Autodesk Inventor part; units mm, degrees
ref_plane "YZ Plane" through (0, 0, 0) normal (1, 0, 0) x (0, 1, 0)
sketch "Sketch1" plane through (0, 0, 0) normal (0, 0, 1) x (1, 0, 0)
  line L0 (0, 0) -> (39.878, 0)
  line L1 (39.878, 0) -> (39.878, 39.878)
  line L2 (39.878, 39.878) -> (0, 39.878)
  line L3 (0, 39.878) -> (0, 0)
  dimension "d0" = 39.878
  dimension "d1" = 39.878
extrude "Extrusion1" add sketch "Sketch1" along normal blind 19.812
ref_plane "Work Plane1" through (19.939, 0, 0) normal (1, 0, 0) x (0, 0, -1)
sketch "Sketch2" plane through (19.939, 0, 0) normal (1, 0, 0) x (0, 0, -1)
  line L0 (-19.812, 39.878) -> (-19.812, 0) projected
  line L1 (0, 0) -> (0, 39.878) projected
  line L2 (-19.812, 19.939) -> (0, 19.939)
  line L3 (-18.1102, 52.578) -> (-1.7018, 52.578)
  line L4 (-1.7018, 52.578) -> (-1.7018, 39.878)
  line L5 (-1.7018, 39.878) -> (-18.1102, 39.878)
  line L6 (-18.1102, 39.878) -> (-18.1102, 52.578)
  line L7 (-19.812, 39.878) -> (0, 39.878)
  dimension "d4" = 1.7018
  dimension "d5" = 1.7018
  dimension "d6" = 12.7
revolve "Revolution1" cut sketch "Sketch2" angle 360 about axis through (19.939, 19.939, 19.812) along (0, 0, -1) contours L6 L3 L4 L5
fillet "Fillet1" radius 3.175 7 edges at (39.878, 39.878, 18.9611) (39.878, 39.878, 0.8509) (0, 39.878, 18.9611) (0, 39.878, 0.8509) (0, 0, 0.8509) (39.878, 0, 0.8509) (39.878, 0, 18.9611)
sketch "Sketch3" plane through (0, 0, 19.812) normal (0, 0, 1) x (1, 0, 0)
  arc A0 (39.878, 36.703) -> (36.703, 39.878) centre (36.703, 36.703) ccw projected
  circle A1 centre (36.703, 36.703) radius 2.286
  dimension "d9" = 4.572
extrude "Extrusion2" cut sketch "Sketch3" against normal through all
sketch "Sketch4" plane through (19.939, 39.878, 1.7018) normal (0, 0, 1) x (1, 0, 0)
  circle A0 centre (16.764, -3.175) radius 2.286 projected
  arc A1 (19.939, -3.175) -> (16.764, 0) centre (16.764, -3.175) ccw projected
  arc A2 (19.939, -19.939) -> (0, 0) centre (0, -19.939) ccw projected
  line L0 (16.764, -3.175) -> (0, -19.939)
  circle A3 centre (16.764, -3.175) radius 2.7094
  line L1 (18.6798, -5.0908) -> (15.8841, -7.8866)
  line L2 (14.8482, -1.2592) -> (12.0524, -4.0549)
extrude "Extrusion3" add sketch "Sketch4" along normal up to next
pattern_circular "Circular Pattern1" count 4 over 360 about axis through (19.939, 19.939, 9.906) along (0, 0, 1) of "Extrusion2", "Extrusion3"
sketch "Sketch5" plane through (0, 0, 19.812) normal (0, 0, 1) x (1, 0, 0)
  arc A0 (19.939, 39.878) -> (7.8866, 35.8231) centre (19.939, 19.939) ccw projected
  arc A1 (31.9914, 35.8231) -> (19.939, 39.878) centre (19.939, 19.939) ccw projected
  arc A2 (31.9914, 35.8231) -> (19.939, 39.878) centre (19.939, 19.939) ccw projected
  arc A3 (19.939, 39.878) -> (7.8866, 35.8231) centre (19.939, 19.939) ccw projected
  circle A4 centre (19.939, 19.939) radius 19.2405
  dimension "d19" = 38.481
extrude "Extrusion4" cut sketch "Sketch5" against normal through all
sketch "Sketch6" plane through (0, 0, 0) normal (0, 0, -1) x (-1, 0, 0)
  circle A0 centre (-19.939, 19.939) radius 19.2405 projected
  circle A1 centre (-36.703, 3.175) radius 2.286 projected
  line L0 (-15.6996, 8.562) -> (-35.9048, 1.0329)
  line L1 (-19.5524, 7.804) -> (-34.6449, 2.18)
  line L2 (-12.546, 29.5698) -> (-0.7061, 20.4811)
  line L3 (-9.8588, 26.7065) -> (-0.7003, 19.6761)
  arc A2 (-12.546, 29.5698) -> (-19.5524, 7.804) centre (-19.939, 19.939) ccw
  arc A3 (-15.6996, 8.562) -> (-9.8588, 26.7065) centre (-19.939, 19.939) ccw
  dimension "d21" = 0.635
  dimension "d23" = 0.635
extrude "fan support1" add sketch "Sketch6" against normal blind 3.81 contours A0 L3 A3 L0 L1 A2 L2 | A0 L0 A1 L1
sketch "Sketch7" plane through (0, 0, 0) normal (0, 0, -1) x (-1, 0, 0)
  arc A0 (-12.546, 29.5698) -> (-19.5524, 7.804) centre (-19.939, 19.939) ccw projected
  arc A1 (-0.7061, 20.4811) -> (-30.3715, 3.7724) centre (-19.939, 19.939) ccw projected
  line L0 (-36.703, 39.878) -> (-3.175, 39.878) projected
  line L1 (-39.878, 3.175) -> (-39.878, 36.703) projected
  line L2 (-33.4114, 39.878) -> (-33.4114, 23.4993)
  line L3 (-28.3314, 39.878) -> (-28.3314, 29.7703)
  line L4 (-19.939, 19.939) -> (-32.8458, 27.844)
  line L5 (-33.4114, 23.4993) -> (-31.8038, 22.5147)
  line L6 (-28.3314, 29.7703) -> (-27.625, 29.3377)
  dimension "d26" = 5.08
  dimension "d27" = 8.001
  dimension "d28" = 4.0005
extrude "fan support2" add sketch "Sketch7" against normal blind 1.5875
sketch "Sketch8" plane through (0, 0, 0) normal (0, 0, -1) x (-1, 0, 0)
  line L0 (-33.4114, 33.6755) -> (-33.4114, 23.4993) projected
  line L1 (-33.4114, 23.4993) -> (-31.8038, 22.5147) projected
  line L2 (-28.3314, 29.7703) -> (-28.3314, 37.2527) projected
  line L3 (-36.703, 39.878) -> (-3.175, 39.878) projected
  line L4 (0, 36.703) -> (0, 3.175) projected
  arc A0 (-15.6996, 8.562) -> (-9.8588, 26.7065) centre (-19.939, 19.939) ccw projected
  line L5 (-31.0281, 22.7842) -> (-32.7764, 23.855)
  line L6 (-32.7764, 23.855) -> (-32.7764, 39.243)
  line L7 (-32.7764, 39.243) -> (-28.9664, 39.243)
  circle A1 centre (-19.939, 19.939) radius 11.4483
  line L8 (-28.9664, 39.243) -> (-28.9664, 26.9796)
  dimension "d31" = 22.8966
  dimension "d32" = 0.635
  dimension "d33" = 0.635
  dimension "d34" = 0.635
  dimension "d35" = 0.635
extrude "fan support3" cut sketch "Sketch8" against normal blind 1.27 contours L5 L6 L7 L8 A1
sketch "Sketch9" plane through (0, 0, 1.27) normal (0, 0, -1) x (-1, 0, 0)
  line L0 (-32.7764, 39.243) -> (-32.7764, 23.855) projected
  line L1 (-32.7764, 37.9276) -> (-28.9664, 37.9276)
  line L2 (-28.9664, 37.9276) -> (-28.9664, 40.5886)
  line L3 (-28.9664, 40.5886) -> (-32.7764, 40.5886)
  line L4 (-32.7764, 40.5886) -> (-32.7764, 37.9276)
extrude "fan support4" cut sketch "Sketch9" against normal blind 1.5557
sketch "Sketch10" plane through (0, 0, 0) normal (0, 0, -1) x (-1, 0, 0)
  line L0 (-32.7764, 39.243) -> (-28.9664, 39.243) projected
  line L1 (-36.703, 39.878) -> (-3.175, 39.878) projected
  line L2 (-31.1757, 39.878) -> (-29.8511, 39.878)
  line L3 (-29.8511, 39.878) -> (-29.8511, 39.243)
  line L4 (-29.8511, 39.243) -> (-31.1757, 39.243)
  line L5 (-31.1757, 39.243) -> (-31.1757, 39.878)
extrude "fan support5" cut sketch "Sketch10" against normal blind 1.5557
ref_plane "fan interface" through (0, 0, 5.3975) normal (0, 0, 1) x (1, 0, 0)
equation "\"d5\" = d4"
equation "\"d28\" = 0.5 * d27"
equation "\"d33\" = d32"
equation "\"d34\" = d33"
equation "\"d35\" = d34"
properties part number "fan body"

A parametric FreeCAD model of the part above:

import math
import FreeCAD as App
import Part
import Sketcher
from FreeCAD import Vector
Q = App.Units.Quantity


def edges_at(feature, points):
    """Names of the edges that pass closest to the given points."""
    edges = feature.Shape.Edges
    near = lambda p: min(range(len(edges)), key=lambda i: edges[i].distToShape(Part.Vertex(*p))[0])
    return sorted({f"Edge{near(p) + 1}" for p in points})

doc = App.newDocument("Part")
body = doc.addObject("PartDesign::Body", "Body")

sketch1 = doc.addObject("Sketcher::SketchObject", "Sketch")
body.addObject(sketch1)
sketch1.AttachmentSupport = (doc.XY_Plane, [""])
sketch1.MapMode = "FlatFace"
sketch1.addGeometry([
    Part.LineSegment(Vector(0, 39.878, 0), Vector(0, 0, 0)),
    Part.LineSegment(Vector(0, 0, 0), Vector(39.878, 0, 0)),
    Part.LineSegment(Vector(39.878, 0, 0), Vector(39.878, 39.878, 0)),
    Part.LineSegment(Vector(39.878, 39.878, 0), Vector(0, 39.878, 0)),
], False)
sketch1.addConstraint([
    Sketcher.Constraint("Coincident", 0, 2, 1, 1),
    Sketcher.Constraint("Coincident", 1, 2, 2, 1),
    Sketcher.Constraint("Coincident", 2, 2, 3, 1),
    Sketcher.Constraint("Coincident", 3, 2, 0, 1),
    Sketcher.Constraint("Vertical", 0),
    Sketcher.Constraint("Horizontal", 1),
    Sketcher.Constraint("Vertical", 2),
    Sketcher.Constraint("Horizontal", 3),
    Sketcher.Constraint("Coincident", 0, 2, -1, 1),
    Sketcher.Constraint("Equal", 3, 0),
    Sketcher.Constraint("DistanceX", 1, 1, 1, 2, Q("1.57 in")),
])
pad1 = doc.addObject("PartDesign::Pad", "Pad")
body.addObject(pad1)
pad1.Profile = sketch1
pad1.Length = Q("0.78 in")

sketch2 = doc.addObject("Sketcher::SketchObject", "Sketch001")
body.addObject(sketch2)
sketch2.AttachmentSupport = (doc.YZ_Plane, [""])
sketch2.MapMode = "FlatFace"
sketch2.AttachmentOffset = App.Placement(Vector(0, 0, 0.785 * 25.4), App.Rotation())
sketch2.addGeometry([
    Part.LineSegment(Vector(52.578, 18.1102, 0), Vector(39.878, 18.1102, 0)),
    Part.LineSegment(Vector(39.878, 18.1102, 0), Vector(39.878, 1.7018, 0)),
    Part.LineSegment(Vector(39.878, 1.7018, 0), Vector(52.578, 1.7018, 0)),
    Part.LineSegment(Vector(52.578, 1.7018, 0), Vector(52.578, 18.1102, 0)),
], False)
sketch2.addGeometry(Part.LineSegment(Vector(19.939, 18.1102, 0), Vector(19.939, 1.7018, 0)), True)
sketch2.addConstraint([
    Sketcher.Constraint("Coincident", 0, 2, 1, 1),
    Sketcher.Constraint("Coincident", 1, 2, 2, 1),
    Sketcher.Constraint("Coincident", 2, 2, 3, 1),
    Sketcher.Constraint("Coincident", 3, 2, 0, 1),
    Sketcher.Constraint("Horizontal", 0),
    Sketcher.Constraint("Vertical", 1),
    Sketcher.Constraint("Horizontal", 2),
    Sketcher.Constraint("Vertical", 3),
    Sketcher.Constraint("Vertical", 4),
    Sketcher.Constraint("Horizontal", 3, 2, 4, 1),
    Sketcher.Constraint("Horizontal", 2, 2, 4, 2),
    Sketcher.Constraint("DistanceX", 0, 2, 0, 1, Q("0.5 in")),
    Sketcher.Constraint("DistanceY", -1, 1, 1, 2, Q("0.067 in")),
    Sketcher.Constraint("DistanceY", 1, 2, 1, 1, Q("0.646 in")),
    Sketcher.Constraint("DistanceX", -1, 1, 0, 2, Q("1.57 in")),
    Sketcher.Constraint("DistanceX", -1, 1, 4, 1, Q("0.785 in")),
])
groove = doc.addObject("PartDesign::Groove", "Groove")
body.addObject(groove)
groove.Profile = sketch2
groove.ReferenceAxis = (sketch2, ["Axis0"])
groove.Angle = 360
doc.recompute()

fillet = doc.addObject("PartDesign::Fillet", "Fillet")
body.addObject(fillet)
fillet.Base = (groove, edges_at(groove, [
    (39.878, 39.878, 18.961),
    (39.878, 39.878, 0.851),
    (0, 39.878, 18.961),
    (0, 39.878, 0.851),
    (0, 0, 0.851),
    (39.878, 0, 0.851),
    (39.878, 0, 18.961),
]))
fillet.Radius = Q("0.125 in")

sketch3 = doc.addObject("Sketcher::SketchObject", "Sketch002")
body.addObject(sketch3)
sketch3.AttachmentSupport = (doc.XY_Plane, [""])
sketch3.MapMode = "FlatFace"
sketch3.AttachmentOffset = App.Placement(Vector(0, 0, 0.78 * 25.4), App.Rotation())
sketch3.addGeometry(Part.Circle(Vector(36.703, 36.703, 0), Vector(0, 0, 1), 2.286), False)
sketch3.addConstraint([
    Sketcher.Constraint("Diameter", 0, Q("0.18 in")),
    Sketcher.Constraint("DistanceX", -1, 1, 0, 3, Q("1.445 in")),
    Sketcher.Constraint("DistanceY", -1, 1, 0, 3, Q("1.445 in")),
])
pocket1 = doc.addObject("PartDesign::Pocket", "Pocket")
body.addObject(pocket1)
pocket1.Profile = sketch3
pocket1.Type = "ThroughAll"

sketch4 = doc.addObject("Sketcher::SketchObject", "Sketch003")
body.addObject(sketch4)
sketch4.AttachmentSupport = (doc.XY_Plane, [""])
sketch4.MapMode = "FlatFace"
sketch4.AttachmentOffset = App.Placement(Vector(0, 0, 0.067 * 25.4), App.Rotation())
sketch4.addGeometry([
    Part.LineSegment(Vector(34.7872, 38.6188, 0), Vector(31.9914, 35.8231, 0)),
    Part.ArcOfCircle(Part.Circle(Vector(19.939, 19.939, 0), Vector(0, 0, 1), 19.939), math.radians(37.190185), math.radians(52.809815)),
    Part.LineSegment(Vector(35.8231, 31.9914, 0), Vector(38.6188, 34.7872, 0)),
    Part.ArcOfCircle(Part.Circle(Vector(36.703, 36.703, 0), Vector(0, 0, 1), 2.7094), math.radians(-45), math.radians(135)),
    Part.Circle(Vector(36.703, 36.703, 0), Vector(0, 0, 1), 2.286),
], False)
sketch4.addConstraint([
    Sketcher.Constraint("Coincident", 0, 2, 1, 2),
    Sketcher.Constraint("Coincident", 1, 1, 2, 1),
    Sketcher.Constraint("Tangent", 2, 2, 3, 1),
    Sketcher.Constraint("Tangent", 3, 2, 0, 1),
    Sketcher.Constraint("Coincident", 4, 3, 3, 3),
    Sketcher.Constraint("Parallel", 0, 2),
    Sketcher.Constraint("Equal", 0, 2),
    Sketcher.Constraint("Diameter", 4, Q("0.18 in")),
    Sketcher.Constraint("Angle", 0, Q("-135.001 deg")),
    Sketcher.Constraint("Radius", 1, Q("0.785 in")),
    Sketcher.Constraint("Radius", 3, 2.7094),
    Sketcher.Constraint("DistanceX", 1, 3, 3, 3, Q("0.66 in")),
    Sketcher.Constraint("DistanceX", -1, 1, 1, 3, Q("0.785 in")),
    Sketcher.Constraint("DistanceY", -1, 1, 1, 3, Q("0.785 in")),
])
pad2 = doc.addObject("PartDesign::Pad", "Pad001")
body.addObject(pad2)
pad2.Profile = sketch4
pad2.Length = Q("0.646 in")
doc.recompute()

datumline = doc.addObject("PartDesign::Line", "DatumLine")
body.addObject(datumline)
datumline.Placement = App.Placement(Vector(19.939, 19.939, 0), App.Rotation(Vector(0, 0, 1), Vector(0, 0, 1)))
polarpattern = doc.addObject("PartDesign::PolarPattern", "PolarPattern")
body.addObject(polarpattern)
polarpattern.Originals = [pocket1, pad2]
polarpattern.Axis = (datumline, [""])
polarpattern.Angle = 360
polarpattern.Occurrences = 4
body.Tip = polarpattern

sketch5 = doc.addObject("Sketcher::SketchObject", "Sketch004")
body.addObject(sketch5)
sketch5.AttachmentSupport = (doc.XY_Plane, [""])
sketch5.MapMode = "FlatFace"
sketch5.AttachmentOffset = App.Placement(Vector(0, 0, 0.78 * 25.4), App.Rotation())
sketch5.addGeometry(Part.Circle(Vector(19.939, 19.939, 0), Vector(0, 0, 1), 19.2405), False)
sketch5.addConstraint([
    Sketcher.Constraint("Diameter", 0, Q("1.515 in")),
    Sketcher.Constraint("DistanceX", -1, 1, 0, 3, Q("0.785 in")),
    Sketcher.Constraint("DistanceY", -1, 1, 0, 3, Q("0.785 in")),
])
pocket2 = doc.addObject("PartDesign::Pocket", "Pocket001")
body.addObject(pocket2)
pocket2.Profile = sketch5
pocket2.Type = "ThroughAll"

sketch6 = doc.addObject("Sketcher::SketchObject", "Sketch005")
body.addObject(sketch6)
sketch6.AttachmentSupport = (doc.XY_Plane, [""])
sketch6.MapMode = "FlatFace"
sketch6.addGeometry([
    Part.ArcOfCircle(Part.Circle(Vector(19.939, 19.939, 0), Vector(0, 0, 1), 19.2405), math.radians(178.385484), math.radians(180.782908)),
    Part.LineSegment(Vector(0.7061, 20.4811, 0), Vector(12.546, 29.5698, 0)),
    Part.ArcOfCircle(Part.Circle(Vector(19.939, 19.939, 0), Vector(0, 0, 1), 12.141196), math.radians(-91.824727), math.radians(127.511334)),
    Part.LineSegment(Vector(19.5524, 7.804, 0), Vector(34.6449, 2.18, 0)),
    Part.ArcOfCircle(Part.Circle(Vector(36.703, 3.175, 0), Vector(0, 0, 1), 2.286), math.radians(-154.198294), math.radians(-110.436651)),
    Part.LineSegment(Vector(35.9048, 1.0329, 0), Vector(15.6996, 8.562, 0)),
    Part.ArcOfCircle(Part.Circle(Vector(19.939, 19.939, 0), Vector(0, 0, 1), 12.141201), math.radians(146.123945), math.radians(249.563148)),
    Part.LineSegment(Vector(9.8588, 26.7065, 0), Vector(0.7003, 19.6761, 0)),
], False)
sketch6.addConstraint([
    Sketcher.Constraint("Coincident", 0, 1, 1, 1),
    Sketcher.Constraint("Tangent", 1, 2, 2, 2),
    Sketcher.Constraint("Coincident", 2, 1, 3, 1),
    Sketcher.Constraint("Coincident", 3, 2, 4, 1),
    Sketcher.Constraint("Tangent", 4, 2, 5, 1),
    Sketcher.Constraint("Tangent", 5, 2, 6, 2),
    Sketcher.Constraint("Coincident", 6, 1, 7, 1),
    Sketcher.Constraint("Coincident", 7, 2, 0, 2),
    Sketcher.Constraint("Coincident", 2, 3, 0, 3),
    Sketcher.Constraint("Coincident", 6, 3, 0, 3),
    Sketcher.Constraint("Equal", 2, 6),
    Sketcher.Constraint("Parallel", 3, 5),
    Sketcher.Constraint("Parallel", 1, 7),
    Sketcher.Constraint("Radius", 4, Q("0.09 in")),
    Sketcher.Constraint("Radius", 2, Q("0.478 in")),
    Sketcher.Constraint("Radius", 0, Q("0.7575 in")),
    Sketcher.Constraint("Angle", 1, Q("37.511 deg")),
    Sketcher.Constraint("DistanceX", 0, 3, 4, 3, Q("0.66 in")),
    Sketcher.Constraint("DistanceY", 4, 3, 0, 3, Q("0.66 in")),
    Sketcher.Constraint("DistanceX", -1, 1, 0, 3, Q("0.785 in")),
    Sketcher.Constraint("DistanceY", -1, 1, 0, 3, Q("0.785 in")),
    Sketcher.Constraint("Distance", 3, Q("0.6341 in")),
    Sketcher.Constraint("DistanceX", 6, 1, 1, 2, Q("0.1058 in")),
])
pad3 = doc.addObject("PartDesign::Pad", "Pad002")
body.addObject(pad3)
pad3.Profile = sketch6
pad3.Length = Q("0.15 in")

sketch7 = doc.addObject("Sketcher::SketchObject", "Sketch006")
body.addObject(sketch7)
sketch7.AttachmentSupport = (doc.XY_Plane, [""])
sketch7.MapMode = "FlatFace"
sketch7.addGeometry([
    Part.LineSegment(Vector(27.625, 29.3377, 0), Vector(28.3314, 29.7703, 0)),
    Part.LineSegment(Vector(28.3314, 29.7703, 0), Vector(28.3314, 39.878, 0)),
    Part.LineSegment(Vector(28.3314, 39.878, 0), Vector(33.4114, 39.878, 0)),
    Part.LineSegment(Vector(33.4114, 39.878, 0), Vector(33.4114, 23.4993, 0)),
    Part.LineSegment(Vector(33.4114, 23.4993, 0), Vector(31.8038, 22.5147, 0)),
    Part.ArcOfCircle(Part.Circle(Vector(19.939, 19.939, 0), Vector(0, 0, 1), 12.141201), math.radians(12.248153), math.radians(50.724638)),
], False)
sketch7.addConstraint([
    Sketcher.Constraint("Coincident", 0, 2, 1, 1),
    Sketcher.Constraint("Coincident", 1, 2, 2, 1),
    Sketcher.Constraint("Coincident", 2, 2, 3, 1),
    Sketcher.Constraint("Coincident", 3, 2, 4, 1),
    Sketcher.Constraint("Coincident", 4, 2, 5, 1),
    Sketcher.Constraint("Coincident", 5, 2, 0, 1),
    Sketcher.Constraint("Vertical", 1),
    Sketcher.Constraint("Horizontal", 2),
    Sketcher.Constraint("Vertical", 3),
    Sketcher.Constraint("Parallel", 0, 4),
    Sketcher.Constraint("DistanceX", 2, 1, 2, 2, Q("0.2 in")),
    Sketcher.Constraint("Radius", 5, Q("0.478 in")),
    Sketcher.Constraint("DistanceY", -1, 1, 1, 2, Q("1.57 in")),
    Sketcher.Constraint("DistanceX", -1, 1, 5, 3, Q("0.785 in")),
    Sketcher.Constraint("DistanceY", -1, 1, 5, 3, Q("0.785 in")),
    Sketcher.Constraint("Distance", 0, Q("0.0326 in")),
    Sketcher.Constraint("DistanceY", 1, 1, 1, 2, 10.1077),
    Sketcher.Constraint("DistanceY", 3, 2, 3, 1, 16.3787),
    Sketcher.Constraint("DistanceX", -1, 1, 0, 2, Q("1.1154 in")),
])
pad4 = doc.addObject("PartDesign::Pad", "Pad003")
body.addObject(pad4)
pad4.Profile = sketch7
pad4.Length = Q("0.0625 in")

sketch8 = doc.addObject("Sketcher::SketchObject", "Sketch007")
body.addObject(sketch8)
sketch8.AttachmentSupport = (doc.XY_Plane, [""])
sketch8.MapMode = "FlatFace"
sketch8.addGeometry([
    Part.LineSegment(Vector(32.7764, 23.855, 0), Vector(31.0281, 22.7842, 0)),
    Part.ArcOfCircle(Part.Circle(Vector(19.939, 19.939, 0), Vector(0, 0, 1), 11.4483), math.radians(14.39032), math.radians(37.951184)),
    Part.LineSegment(Vector(28.9664, 26.9796, 0), Vector(28.9664, 39.243, 0)),
    Part.LineSegment(Vector(28.9664, 39.243, 0), Vector(32.7764, 39.243, 0)),
    Part.LineSegment(Vector(32.7764, 39.243, 0), Vector(32.7764, 23.855, 0)),
], False)
sketch8.addConstraint([
    Sketcher.Constraint("Coincident", 0, 2, 1, 1),
    Sketcher.Constraint("Coincident", 1, 2, 2, 1),
    Sketcher.Constraint("Coincident", 2, 2, 3, 1),
    Sketcher.Constraint("Coincident", 3, 2, 4, 1),
    Sketcher.Constraint("Coincident", 4, 2, 0, 1),
    Sketcher.Constraint("Vertical", 2),
    Sketcher.Constraint("Horizontal", 3),
    Sketcher.Constraint("Vertical", 4),
    Sketcher.Constraint("Radius", 1, 11.4483),
    Sketcher.Constraint("DistanceX", 3, 1, 3, 2, Q("0.15 in")),
    Sketcher.Constraint("DistanceY", 1, 3, 2, 2, Q("0.76 in")),
    Sketcher.Constraint("DistanceY", 2, 1, 2, 2, Q("0.4828 in")),
    Sketcher.Constraint("DistanceX", -1, 1, 1, 3, Q("0.785 in")),
    Sketcher.Constraint("DistanceY", -1, 1, 1, 3, Q("0.785 in")),
    Sketcher.Constraint("DistanceY", 4, 2, 4, 1, 15.388),
    Sketcher.Constraint("Distance", 0, 2.0502),
])
pocket3 = doc.addObject("PartDesign::Pocket", "Pocket002")
body.addObject(pocket3)
pocket3.Profile = sketch8
pocket3.Length = Q("0.05 in")
pocket3.Reversed = True

sketch9 = doc.addObject("Sketcher::SketchObject", "Sketch008")
body.addObject(sketch9)
sketch9.AttachmentSupport = (doc.XY_Plane, [""])
sketch9.MapMode = "FlatFace"
sketch9.AttachmentOffset = App.Placement(Vector(0, 0, 0.05 * 25.4), App.Rotation())
sketch9.addGeometry([
    Part.LineSegment(Vector(32.7764, 40.5886, 0), Vector(32.7764, 37.9276, 0)),
    Part.LineSegment(Vector(32.7764, 37.9276, 0), Vector(28.9664, 37.9276, 0)),
    Part.LineSegment(Vector(28.9664, 37.9276, 0), Vector(28.9664, 40.5886, 0)),
    Part.LineSegment(Vector(28.9664, 40.5886, 0), Vector(32.7764, 40.5886, 0)),
], False)
sketch9.addConstraint([
    Sketcher.Constraint("Coincident", 0, 2, 1, 1),
    Sketcher.Constraint("Coincident", 1, 2, 2, 1),
    Sketcher.Constraint("Coincident", 2, 2, 3, 1),
    Sketcher.Constraint("Coincident", 3, 2, 0, 1),
    Sketcher.Constraint("Vertical", 0),
    Sketcher.Constraint("Horizontal", 1),
    Sketcher.Constraint("Vertical", 2),
    Sketcher.Constraint("Horizontal", 3),
    Sketcher.Constraint("DistanceX", 1, 2, 1, 1, Q("0.15 in")),
    Sketcher.Constraint("DistanceY", 0, 2, 0, 1, 2.661),
    Sketcher.Constraint("DistanceX", -1, 1, 0, 2, Q("1.2904 in")),
    Sketcher.Constraint("DistanceY", -1, 1, 0, 2, 37.9276),
])
pocket4 = doc.addObject("PartDesign::Pocket", "Pocket003")
body.addObject(pocket4)
pocket4.Profile = sketch9
pocket4.Length = 1.5557
pocket4.Reversed = True

sketch10 = doc.addObject("Sketcher::SketchObject", "Sketch009")
body.addObject(sketch10)
sketch10.AttachmentSupport = (doc.XY_Plane, [""])
sketch10.MapMode = "FlatFace"
sketch10.addGeometry([
    Part.LineSegment(Vector(31.1757, 39.878, 0), Vector(31.1757, 39.243, 0)),
    Part.LineSegment(Vector(31.1757, 39.243, 0), Vector(29.8511, 39.243, 0)),
    Part.LineSegment(Vector(29.8511, 39.243, 0), Vector(29.8511, 39.878, 0)),
    Part.LineSegment(Vector(29.8511, 39.878, 0), Vector(31.1757, 39.878, 0)),
], False)
sketch10.addConstraint([
    Sketcher.Constraint("Coincident", 0, 2, 1, 1),
    Sketcher.Constraint("Coincident", 1, 2, 2, 1),
    Sketcher.Constraint("Coincident", 2, 2, 3, 1),
    Sketcher.Constraint("Coincident", 3, 2, 0, 1),
    Sketcher.Constraint("Vertical", 0),
    Sketcher.Constraint("Horizontal", 1),
    Sketcher.Constraint("Vertical", 2),
    Sketcher.Constraint("Horizontal", 3),
    Sketcher.Constraint("DistanceY", 0, 2, 0, 1, Q("0.025 in")),
    Sketcher.Constraint("DistanceY", -1, 1, 2, 2, Q("1.57 in")),
    Sketcher.Constraint("DistanceX", 1, 2, 1, 1, 1.3246),
    Sketcher.Constraint("DistanceX", -1, 1, 0, 2, Q("1.2274 in")),
])
pocket5 = doc.addObject("PartDesign::Pocket", "Pocket004")
body.addObject(pocket5)
pocket5.Profile = sketch10
pocket5.Length = 1.5557
pocket5.Reversed = True

doc.recompute()
